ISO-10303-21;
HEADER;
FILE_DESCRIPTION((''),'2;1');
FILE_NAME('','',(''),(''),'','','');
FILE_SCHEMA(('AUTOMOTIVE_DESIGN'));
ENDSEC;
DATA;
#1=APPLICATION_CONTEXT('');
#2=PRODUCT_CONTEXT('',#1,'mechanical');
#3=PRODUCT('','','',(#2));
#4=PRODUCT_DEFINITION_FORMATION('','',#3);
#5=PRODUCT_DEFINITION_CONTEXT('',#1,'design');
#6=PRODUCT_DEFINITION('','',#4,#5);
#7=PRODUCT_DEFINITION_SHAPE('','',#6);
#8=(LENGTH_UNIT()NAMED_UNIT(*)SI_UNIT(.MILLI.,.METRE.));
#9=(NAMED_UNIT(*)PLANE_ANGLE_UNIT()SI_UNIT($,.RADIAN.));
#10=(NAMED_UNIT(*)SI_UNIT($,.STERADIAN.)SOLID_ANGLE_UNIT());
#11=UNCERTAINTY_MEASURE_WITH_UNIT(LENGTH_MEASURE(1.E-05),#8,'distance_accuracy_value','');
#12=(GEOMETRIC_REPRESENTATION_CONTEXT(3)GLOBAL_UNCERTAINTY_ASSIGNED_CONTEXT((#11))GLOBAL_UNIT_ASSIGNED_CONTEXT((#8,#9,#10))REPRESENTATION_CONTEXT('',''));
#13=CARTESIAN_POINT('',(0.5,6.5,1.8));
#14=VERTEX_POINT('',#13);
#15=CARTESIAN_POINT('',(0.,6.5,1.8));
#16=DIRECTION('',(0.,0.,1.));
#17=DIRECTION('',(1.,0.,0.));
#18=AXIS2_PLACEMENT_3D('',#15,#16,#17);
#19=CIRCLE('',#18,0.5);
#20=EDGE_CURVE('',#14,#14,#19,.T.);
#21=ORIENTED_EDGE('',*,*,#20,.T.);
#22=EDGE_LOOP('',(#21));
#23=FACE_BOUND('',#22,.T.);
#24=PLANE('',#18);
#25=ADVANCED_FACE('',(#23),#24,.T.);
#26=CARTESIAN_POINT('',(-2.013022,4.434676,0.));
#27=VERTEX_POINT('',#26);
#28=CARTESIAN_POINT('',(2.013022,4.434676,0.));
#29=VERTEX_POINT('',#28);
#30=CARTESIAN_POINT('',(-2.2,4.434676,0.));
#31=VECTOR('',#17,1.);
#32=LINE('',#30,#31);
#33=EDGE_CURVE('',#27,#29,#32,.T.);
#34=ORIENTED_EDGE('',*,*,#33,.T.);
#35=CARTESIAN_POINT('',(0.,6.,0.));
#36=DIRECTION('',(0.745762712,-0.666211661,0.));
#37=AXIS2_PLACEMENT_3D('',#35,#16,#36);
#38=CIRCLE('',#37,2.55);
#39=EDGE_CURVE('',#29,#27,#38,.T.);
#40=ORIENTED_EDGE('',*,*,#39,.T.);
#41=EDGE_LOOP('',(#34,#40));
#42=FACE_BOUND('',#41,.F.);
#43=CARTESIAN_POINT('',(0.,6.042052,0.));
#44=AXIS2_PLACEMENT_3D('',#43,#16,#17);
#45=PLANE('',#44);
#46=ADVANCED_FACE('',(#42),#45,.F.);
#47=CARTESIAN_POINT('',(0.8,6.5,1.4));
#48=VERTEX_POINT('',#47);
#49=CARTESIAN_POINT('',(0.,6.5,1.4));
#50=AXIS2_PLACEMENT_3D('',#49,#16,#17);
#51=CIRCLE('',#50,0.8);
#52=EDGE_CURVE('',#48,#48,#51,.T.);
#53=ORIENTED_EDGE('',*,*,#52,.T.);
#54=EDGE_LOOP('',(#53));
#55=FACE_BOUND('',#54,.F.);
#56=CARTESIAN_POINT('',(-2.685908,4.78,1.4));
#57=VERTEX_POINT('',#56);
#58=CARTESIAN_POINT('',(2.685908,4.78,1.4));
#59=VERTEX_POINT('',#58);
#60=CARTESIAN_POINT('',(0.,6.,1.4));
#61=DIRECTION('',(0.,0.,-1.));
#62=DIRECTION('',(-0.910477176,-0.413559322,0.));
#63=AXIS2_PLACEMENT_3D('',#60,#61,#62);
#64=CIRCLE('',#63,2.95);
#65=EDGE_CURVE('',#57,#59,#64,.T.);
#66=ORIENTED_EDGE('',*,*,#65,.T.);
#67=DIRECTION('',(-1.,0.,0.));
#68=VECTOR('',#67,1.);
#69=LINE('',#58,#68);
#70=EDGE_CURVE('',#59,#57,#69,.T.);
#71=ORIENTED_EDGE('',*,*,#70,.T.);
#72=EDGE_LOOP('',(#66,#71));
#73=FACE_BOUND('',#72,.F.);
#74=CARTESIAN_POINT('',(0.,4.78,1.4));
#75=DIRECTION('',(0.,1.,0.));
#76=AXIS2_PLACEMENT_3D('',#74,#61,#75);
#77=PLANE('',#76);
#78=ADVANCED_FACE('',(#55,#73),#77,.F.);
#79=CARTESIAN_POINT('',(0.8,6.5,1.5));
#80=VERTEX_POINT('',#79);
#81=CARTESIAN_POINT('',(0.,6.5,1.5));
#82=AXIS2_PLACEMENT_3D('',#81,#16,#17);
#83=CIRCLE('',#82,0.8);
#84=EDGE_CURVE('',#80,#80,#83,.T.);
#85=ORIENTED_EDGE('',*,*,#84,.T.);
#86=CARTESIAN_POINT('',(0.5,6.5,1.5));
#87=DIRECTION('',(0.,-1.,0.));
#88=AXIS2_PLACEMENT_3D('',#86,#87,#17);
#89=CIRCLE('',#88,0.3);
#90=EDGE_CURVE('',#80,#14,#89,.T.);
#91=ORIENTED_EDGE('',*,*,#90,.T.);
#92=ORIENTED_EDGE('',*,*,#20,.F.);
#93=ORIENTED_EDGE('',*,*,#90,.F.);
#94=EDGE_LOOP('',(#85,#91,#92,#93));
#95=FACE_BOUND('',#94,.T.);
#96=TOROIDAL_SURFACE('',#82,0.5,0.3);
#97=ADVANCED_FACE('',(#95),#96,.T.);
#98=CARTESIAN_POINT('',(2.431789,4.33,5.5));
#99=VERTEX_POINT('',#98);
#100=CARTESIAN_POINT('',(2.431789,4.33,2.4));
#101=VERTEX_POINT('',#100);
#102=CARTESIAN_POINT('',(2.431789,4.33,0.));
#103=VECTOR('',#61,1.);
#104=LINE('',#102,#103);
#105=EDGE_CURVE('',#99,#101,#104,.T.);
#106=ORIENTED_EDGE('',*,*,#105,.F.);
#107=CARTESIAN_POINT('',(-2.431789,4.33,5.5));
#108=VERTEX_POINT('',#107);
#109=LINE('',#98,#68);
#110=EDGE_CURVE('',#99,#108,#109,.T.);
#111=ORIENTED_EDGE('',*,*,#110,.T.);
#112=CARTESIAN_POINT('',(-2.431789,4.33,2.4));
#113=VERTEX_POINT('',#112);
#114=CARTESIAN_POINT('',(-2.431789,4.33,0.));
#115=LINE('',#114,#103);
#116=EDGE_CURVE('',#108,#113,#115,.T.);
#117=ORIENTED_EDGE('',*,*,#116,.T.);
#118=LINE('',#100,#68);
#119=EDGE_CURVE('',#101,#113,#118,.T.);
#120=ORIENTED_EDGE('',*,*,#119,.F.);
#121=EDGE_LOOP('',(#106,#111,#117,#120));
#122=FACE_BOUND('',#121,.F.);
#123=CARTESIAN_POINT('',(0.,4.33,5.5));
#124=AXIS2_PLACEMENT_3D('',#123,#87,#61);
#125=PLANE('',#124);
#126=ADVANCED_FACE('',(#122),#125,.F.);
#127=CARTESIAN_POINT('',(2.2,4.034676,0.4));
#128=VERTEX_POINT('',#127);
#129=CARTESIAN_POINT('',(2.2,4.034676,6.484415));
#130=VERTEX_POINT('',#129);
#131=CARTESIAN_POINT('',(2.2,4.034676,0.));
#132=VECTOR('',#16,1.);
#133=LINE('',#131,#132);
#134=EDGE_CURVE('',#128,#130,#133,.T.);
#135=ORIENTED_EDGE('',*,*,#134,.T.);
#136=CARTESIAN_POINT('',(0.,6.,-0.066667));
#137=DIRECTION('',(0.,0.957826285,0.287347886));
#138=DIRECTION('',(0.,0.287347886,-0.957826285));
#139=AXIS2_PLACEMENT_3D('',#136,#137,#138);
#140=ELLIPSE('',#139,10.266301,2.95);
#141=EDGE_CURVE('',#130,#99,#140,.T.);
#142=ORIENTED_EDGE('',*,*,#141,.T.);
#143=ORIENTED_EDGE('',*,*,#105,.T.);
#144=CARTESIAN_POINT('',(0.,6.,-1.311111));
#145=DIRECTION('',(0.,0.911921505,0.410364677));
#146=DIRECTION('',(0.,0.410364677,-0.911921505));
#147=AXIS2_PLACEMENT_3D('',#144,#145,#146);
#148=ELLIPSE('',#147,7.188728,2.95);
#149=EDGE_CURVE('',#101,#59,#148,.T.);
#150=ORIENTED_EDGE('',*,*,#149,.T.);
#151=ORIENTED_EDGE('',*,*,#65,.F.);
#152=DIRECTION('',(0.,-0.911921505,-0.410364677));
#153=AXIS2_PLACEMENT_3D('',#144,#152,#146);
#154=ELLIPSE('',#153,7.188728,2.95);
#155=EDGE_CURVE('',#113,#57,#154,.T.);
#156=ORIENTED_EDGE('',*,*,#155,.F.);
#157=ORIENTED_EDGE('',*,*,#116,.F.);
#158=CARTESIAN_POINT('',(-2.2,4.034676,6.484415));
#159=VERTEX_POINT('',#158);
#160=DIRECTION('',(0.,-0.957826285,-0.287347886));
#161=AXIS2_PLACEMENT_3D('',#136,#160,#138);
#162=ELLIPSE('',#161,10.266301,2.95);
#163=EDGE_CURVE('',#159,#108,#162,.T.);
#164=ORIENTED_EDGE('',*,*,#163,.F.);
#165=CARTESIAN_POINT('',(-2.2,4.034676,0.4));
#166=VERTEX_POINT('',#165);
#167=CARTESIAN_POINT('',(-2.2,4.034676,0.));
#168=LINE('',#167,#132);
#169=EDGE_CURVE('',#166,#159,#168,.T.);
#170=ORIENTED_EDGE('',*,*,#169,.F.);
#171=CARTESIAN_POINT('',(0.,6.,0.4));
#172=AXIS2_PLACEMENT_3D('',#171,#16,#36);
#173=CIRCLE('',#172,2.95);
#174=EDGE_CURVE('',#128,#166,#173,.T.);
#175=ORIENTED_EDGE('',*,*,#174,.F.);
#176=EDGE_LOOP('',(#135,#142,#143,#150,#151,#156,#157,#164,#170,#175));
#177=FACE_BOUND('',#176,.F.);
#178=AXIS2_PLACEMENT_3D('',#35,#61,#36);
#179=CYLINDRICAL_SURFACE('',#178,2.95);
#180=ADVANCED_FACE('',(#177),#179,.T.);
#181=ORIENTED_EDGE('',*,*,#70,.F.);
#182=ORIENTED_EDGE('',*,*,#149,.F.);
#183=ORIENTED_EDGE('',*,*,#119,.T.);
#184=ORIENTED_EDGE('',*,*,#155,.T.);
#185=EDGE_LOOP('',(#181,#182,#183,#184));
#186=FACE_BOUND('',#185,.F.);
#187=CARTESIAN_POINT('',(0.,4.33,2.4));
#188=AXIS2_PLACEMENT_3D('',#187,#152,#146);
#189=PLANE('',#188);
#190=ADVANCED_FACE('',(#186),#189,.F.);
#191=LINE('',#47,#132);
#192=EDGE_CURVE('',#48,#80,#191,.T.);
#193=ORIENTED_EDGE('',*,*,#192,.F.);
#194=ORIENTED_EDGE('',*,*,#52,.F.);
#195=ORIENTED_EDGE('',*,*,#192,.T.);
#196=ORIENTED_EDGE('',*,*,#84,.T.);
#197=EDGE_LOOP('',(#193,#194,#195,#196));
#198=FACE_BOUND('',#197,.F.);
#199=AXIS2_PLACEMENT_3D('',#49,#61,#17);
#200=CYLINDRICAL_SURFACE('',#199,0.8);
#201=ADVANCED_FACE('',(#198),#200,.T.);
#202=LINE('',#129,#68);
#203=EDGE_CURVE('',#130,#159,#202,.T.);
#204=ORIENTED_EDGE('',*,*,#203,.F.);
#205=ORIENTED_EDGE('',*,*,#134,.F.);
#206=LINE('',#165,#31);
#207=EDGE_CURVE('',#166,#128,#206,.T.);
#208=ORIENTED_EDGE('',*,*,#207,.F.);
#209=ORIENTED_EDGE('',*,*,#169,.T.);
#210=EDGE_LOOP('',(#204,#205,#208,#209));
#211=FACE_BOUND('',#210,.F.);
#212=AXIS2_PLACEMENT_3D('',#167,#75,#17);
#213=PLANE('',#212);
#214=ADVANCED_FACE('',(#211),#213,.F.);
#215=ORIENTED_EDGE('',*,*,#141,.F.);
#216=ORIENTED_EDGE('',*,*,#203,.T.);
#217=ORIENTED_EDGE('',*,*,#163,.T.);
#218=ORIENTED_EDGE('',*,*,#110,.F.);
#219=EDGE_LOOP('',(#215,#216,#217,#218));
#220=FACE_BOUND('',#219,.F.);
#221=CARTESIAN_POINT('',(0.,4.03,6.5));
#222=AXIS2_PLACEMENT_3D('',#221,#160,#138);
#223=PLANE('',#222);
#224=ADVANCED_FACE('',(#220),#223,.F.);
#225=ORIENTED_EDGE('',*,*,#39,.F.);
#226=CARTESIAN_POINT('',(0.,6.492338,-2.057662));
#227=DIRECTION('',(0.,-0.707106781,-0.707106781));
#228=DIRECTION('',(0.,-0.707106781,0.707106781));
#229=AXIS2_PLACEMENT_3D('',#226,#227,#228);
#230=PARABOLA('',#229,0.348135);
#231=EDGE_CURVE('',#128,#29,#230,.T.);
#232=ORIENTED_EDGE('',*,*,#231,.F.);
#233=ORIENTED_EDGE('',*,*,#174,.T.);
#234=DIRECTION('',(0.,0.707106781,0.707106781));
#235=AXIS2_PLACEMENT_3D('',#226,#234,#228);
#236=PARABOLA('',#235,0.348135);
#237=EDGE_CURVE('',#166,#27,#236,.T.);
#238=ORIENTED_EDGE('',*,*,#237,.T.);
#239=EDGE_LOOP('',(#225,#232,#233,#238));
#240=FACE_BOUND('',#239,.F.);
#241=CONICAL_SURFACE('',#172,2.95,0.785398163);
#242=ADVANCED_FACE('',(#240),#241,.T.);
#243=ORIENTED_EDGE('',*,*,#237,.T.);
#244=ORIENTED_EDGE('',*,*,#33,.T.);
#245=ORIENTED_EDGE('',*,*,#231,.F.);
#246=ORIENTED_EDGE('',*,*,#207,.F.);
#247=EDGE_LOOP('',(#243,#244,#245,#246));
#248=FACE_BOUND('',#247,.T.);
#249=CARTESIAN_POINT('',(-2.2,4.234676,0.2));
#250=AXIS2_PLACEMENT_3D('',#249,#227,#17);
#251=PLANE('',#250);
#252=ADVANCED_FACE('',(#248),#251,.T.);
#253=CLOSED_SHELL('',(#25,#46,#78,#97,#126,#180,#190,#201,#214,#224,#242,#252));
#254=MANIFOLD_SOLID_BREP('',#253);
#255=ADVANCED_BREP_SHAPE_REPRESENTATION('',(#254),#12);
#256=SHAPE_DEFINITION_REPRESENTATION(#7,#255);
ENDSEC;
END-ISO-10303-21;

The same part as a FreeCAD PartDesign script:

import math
import FreeCAD as App
import Part
import Sketcher
from FreeCAD import Vector
Q = App.Units.Quantity


def edges_at(feature, points):
    """Names of the edges that pass closest to the given points."""
    edges = feature.Shape.Edges
    near = lambda p: min(range(len(edges)), key=lambda i: edges[i].distToShape(Part.Vertex(*p))[0])
    return sorted({f"Edge{near(p) + 1}" for p in points})

doc = App.newDocument("Part")
body = doc.addObject("PartDesign::Body", "Body")

# Sketch on XY plane
sketch1 = doc.addObject("Sketcher::SketchObject", "Sketch")
body.addObject(sketch1)
sketch1.AttachmentSupport = (doc.XY_Plane, [""])
sketch1.MapMode = "FlatFace"
sketch1.addGeometry(Part.ArcOfCircle(Part.Circle(Vector(0, 0, 0), Vector(0, 0, 1), 2.95), math.radians(-41.775348), math.radians(221.775348)), False)
sketch1.addGeometry(Part.LineSegment(Vector(-2.2, -1.965324, 0), Vector(2.2, -1.965324, 0)), False)
sketch1.addConstraint(Sketcher.Constraint("Coincident", 0, 1, 1, 2))
sketch1.addConstraint(Sketcher.Constraint("Coincident", 1, 1, 0, 2))
sketch1.addConstraint(Sketcher.Constraint("Horizontal", 1))
sketch1.addConstraint(Sketcher.Constraint("Coincident", 0, 3, -1, 1))
sketch1.addConstraint(Sketcher.Constraint("Radius", 0, Q("2.95 mm")))
sketch1.addConstraint(Sketcher.Constraint("DistanceX", 1, 1, 1, 2, Q("4.4 mm")))
pad1 = doc.addObject("PartDesign::Pad", "Pad")
body.addObject(pad1)
pad1.Profile = sketch1
pad1.Length = 6.5

# Sketch on YZ plane
sketch2 = doc.addObject("Sketcher::SketchObject", "Sketch001")
body.addObject(sketch2)
sketch2.AttachmentSupport = (doc.YZ_Plane, [""])
sketch2.MapMode = "FlatFace"
sketch2.addGeometry(Part.LineSegment(Vector(-1.97, 6.5, 0), Vector(-1.67, 5.5, 0)), False)
sketch2.addGeometry(Part.LineSegment(Vector(-1.67, 5.5, 0), Vector(-1.67, 2.4, 0)), False)
sketch2.addGeometry(Part.LineSegment(Vector(-1.67, 2.4, 0), Vector(-1.22, 1.4, 0)), False)
sketch2.addGeometry(Part.LineSegment(Vector(-1.22, 1.4, 0), Vector(4, 1.4, 0)), False)
sketch2.addGeometry(Part.LineSegment(Vector(4, 1.4, 0), Vector(4, 6.5, 0)), False)
sketch2.addGeometry(Part.LineSegment(Vector(4, 6.5, 0), Vector(-1.97, 6.5, 0)), False)
sketch2.addConstraint(Sketcher.Constraint("Coincident", 0, 2, 1, 1))
sketch2.addConstraint(Sketcher.Constraint("Coincident", 1, 2, 2, 1))
sketch2.addConstraint(Sketcher.Constraint("Coincident", 2, 2, 3, 1))
sketch2.addConstraint(Sketcher.Constraint("Coincident", 3, 2, 4, 1))
sketch2.addConstraint(Sketcher.Constraint("Coincident", 4, 2, 5, 1))
sketch2.addConstraint(Sketcher.Constraint("Coincident", 5, 2, 0, 1))
sketch2.addConstraint(Sketcher.Constraint("Vertical", 1))
sketch2.addConstraint(Sketcher.Constraint("Horizontal", 3))
sketch2.addConstraint(Sketcher.Constraint("Vertical", 4))
sketch2.addConstraint(Sketcher.Constraint("Horizontal", 5))
sketch2.addConstraint(Sketcher.Constraint("DistanceY", 1, 2, 1, 1, Q("3.1 mm")))
sketch2.addConstraint(Sketcher.Constraint("DistanceY", 4, 1, 4, 2, Q("5.1 mm")))
sketch2.addConstraint(Sketcher.Constraint("DistanceX", -1, 1, 3, 2, Q("4 mm")))
sketch2.addConstraint(Sketcher.Constraint("DistanceY", 2, 2, 1, 2, Q("1 mm")))
sketch2.addConstraint(Sketcher.Constraint("DistanceX", 3, 1, 3, 2, Q("5.22 mm")))
sketch2.addConstraint(Sketcher.Constraint("DistanceX", 5, 2, 5, 1, Q("5.97 mm")))
sketch2.addConstraint(Sketcher.Constraint("DistanceY", -1, 1, 0, 2, Q("5.5 mm")))
sketch2.addConstraint(Sketcher.Constraint("DistanceX", 5, 2, 0, 2, Q("0.3 mm")))
pocket1 = doc.addObject("PartDesign::Pocket", "Pocket")
body.addObject(pocket1)
pocket1.Profile = sketch2
pocket1.Type = "ThroughAll"
pocket1.Midplane = True

# Sketch on XY plane
sketch3 = doc.addObject("Sketcher::SketchObject", "Sketch002")
body.addObject(sketch3)
sketch3.AttachmentSupport = (doc.XY_Plane, [""])
sketch3.MapMode = "FlatFace"
sketch3.AttachmentOffset = App.Placement(Vector(0, 0, 1.4), App.Rotation())
sketch3.addGeometry(Part.Circle(Vector(0, 0.5, 0), Vector(0, 0, 1), 0.8), False)
sketch3.addConstraint(Sketcher.Constraint("PointOnObject", 0, 3, -2))
sketch3.addConstraint(Sketcher.Constraint("Diameter", 0, Q("1.6 mm")))
sketch3.addConstraint(Sketcher.Constraint("DistanceY", -1, 1, 0, 3, Q("0.5 mm")))
pad2 = doc.addObject("PartDesign::Pad", "Pad001")
body.addObject(pad2)
pad2.Profile = sketch3
pad2.Length = 0.4
doc.recompute()

fillet = doc.addObject("PartDesign::Fillet", "Fillet")
body.addObject(fillet)
fillet.Base = (pad2, edges_at(pad2, [(-0.8, 0.5, 1.8)]))
fillet.Radius = 0.3
doc.recompute()

chamfer = doc.addObject("PartDesign::Chamfer", "Chamfer")
body.addObject(chamfer)
chamfer.Base = (fillet, edges_at(fillet, [(0, 2.95, 0), (0, -1.965, 0)]))
chamfer.Size = 0.4
body2 = doc.addObject("PartDesign::Body", "Body001")
doc.recompute()

body.Placement = App.Placement(Vector(0, 6, 0), App.Rotation(Vector(0, 0, 1), 0))
boolean = doc.addObject("PartDesign::Boolean", "Boolean")
body2.addObject(boolean)
boolean.Type = "Fuse"
boolean.addObjects([body])

doc.recompute()
